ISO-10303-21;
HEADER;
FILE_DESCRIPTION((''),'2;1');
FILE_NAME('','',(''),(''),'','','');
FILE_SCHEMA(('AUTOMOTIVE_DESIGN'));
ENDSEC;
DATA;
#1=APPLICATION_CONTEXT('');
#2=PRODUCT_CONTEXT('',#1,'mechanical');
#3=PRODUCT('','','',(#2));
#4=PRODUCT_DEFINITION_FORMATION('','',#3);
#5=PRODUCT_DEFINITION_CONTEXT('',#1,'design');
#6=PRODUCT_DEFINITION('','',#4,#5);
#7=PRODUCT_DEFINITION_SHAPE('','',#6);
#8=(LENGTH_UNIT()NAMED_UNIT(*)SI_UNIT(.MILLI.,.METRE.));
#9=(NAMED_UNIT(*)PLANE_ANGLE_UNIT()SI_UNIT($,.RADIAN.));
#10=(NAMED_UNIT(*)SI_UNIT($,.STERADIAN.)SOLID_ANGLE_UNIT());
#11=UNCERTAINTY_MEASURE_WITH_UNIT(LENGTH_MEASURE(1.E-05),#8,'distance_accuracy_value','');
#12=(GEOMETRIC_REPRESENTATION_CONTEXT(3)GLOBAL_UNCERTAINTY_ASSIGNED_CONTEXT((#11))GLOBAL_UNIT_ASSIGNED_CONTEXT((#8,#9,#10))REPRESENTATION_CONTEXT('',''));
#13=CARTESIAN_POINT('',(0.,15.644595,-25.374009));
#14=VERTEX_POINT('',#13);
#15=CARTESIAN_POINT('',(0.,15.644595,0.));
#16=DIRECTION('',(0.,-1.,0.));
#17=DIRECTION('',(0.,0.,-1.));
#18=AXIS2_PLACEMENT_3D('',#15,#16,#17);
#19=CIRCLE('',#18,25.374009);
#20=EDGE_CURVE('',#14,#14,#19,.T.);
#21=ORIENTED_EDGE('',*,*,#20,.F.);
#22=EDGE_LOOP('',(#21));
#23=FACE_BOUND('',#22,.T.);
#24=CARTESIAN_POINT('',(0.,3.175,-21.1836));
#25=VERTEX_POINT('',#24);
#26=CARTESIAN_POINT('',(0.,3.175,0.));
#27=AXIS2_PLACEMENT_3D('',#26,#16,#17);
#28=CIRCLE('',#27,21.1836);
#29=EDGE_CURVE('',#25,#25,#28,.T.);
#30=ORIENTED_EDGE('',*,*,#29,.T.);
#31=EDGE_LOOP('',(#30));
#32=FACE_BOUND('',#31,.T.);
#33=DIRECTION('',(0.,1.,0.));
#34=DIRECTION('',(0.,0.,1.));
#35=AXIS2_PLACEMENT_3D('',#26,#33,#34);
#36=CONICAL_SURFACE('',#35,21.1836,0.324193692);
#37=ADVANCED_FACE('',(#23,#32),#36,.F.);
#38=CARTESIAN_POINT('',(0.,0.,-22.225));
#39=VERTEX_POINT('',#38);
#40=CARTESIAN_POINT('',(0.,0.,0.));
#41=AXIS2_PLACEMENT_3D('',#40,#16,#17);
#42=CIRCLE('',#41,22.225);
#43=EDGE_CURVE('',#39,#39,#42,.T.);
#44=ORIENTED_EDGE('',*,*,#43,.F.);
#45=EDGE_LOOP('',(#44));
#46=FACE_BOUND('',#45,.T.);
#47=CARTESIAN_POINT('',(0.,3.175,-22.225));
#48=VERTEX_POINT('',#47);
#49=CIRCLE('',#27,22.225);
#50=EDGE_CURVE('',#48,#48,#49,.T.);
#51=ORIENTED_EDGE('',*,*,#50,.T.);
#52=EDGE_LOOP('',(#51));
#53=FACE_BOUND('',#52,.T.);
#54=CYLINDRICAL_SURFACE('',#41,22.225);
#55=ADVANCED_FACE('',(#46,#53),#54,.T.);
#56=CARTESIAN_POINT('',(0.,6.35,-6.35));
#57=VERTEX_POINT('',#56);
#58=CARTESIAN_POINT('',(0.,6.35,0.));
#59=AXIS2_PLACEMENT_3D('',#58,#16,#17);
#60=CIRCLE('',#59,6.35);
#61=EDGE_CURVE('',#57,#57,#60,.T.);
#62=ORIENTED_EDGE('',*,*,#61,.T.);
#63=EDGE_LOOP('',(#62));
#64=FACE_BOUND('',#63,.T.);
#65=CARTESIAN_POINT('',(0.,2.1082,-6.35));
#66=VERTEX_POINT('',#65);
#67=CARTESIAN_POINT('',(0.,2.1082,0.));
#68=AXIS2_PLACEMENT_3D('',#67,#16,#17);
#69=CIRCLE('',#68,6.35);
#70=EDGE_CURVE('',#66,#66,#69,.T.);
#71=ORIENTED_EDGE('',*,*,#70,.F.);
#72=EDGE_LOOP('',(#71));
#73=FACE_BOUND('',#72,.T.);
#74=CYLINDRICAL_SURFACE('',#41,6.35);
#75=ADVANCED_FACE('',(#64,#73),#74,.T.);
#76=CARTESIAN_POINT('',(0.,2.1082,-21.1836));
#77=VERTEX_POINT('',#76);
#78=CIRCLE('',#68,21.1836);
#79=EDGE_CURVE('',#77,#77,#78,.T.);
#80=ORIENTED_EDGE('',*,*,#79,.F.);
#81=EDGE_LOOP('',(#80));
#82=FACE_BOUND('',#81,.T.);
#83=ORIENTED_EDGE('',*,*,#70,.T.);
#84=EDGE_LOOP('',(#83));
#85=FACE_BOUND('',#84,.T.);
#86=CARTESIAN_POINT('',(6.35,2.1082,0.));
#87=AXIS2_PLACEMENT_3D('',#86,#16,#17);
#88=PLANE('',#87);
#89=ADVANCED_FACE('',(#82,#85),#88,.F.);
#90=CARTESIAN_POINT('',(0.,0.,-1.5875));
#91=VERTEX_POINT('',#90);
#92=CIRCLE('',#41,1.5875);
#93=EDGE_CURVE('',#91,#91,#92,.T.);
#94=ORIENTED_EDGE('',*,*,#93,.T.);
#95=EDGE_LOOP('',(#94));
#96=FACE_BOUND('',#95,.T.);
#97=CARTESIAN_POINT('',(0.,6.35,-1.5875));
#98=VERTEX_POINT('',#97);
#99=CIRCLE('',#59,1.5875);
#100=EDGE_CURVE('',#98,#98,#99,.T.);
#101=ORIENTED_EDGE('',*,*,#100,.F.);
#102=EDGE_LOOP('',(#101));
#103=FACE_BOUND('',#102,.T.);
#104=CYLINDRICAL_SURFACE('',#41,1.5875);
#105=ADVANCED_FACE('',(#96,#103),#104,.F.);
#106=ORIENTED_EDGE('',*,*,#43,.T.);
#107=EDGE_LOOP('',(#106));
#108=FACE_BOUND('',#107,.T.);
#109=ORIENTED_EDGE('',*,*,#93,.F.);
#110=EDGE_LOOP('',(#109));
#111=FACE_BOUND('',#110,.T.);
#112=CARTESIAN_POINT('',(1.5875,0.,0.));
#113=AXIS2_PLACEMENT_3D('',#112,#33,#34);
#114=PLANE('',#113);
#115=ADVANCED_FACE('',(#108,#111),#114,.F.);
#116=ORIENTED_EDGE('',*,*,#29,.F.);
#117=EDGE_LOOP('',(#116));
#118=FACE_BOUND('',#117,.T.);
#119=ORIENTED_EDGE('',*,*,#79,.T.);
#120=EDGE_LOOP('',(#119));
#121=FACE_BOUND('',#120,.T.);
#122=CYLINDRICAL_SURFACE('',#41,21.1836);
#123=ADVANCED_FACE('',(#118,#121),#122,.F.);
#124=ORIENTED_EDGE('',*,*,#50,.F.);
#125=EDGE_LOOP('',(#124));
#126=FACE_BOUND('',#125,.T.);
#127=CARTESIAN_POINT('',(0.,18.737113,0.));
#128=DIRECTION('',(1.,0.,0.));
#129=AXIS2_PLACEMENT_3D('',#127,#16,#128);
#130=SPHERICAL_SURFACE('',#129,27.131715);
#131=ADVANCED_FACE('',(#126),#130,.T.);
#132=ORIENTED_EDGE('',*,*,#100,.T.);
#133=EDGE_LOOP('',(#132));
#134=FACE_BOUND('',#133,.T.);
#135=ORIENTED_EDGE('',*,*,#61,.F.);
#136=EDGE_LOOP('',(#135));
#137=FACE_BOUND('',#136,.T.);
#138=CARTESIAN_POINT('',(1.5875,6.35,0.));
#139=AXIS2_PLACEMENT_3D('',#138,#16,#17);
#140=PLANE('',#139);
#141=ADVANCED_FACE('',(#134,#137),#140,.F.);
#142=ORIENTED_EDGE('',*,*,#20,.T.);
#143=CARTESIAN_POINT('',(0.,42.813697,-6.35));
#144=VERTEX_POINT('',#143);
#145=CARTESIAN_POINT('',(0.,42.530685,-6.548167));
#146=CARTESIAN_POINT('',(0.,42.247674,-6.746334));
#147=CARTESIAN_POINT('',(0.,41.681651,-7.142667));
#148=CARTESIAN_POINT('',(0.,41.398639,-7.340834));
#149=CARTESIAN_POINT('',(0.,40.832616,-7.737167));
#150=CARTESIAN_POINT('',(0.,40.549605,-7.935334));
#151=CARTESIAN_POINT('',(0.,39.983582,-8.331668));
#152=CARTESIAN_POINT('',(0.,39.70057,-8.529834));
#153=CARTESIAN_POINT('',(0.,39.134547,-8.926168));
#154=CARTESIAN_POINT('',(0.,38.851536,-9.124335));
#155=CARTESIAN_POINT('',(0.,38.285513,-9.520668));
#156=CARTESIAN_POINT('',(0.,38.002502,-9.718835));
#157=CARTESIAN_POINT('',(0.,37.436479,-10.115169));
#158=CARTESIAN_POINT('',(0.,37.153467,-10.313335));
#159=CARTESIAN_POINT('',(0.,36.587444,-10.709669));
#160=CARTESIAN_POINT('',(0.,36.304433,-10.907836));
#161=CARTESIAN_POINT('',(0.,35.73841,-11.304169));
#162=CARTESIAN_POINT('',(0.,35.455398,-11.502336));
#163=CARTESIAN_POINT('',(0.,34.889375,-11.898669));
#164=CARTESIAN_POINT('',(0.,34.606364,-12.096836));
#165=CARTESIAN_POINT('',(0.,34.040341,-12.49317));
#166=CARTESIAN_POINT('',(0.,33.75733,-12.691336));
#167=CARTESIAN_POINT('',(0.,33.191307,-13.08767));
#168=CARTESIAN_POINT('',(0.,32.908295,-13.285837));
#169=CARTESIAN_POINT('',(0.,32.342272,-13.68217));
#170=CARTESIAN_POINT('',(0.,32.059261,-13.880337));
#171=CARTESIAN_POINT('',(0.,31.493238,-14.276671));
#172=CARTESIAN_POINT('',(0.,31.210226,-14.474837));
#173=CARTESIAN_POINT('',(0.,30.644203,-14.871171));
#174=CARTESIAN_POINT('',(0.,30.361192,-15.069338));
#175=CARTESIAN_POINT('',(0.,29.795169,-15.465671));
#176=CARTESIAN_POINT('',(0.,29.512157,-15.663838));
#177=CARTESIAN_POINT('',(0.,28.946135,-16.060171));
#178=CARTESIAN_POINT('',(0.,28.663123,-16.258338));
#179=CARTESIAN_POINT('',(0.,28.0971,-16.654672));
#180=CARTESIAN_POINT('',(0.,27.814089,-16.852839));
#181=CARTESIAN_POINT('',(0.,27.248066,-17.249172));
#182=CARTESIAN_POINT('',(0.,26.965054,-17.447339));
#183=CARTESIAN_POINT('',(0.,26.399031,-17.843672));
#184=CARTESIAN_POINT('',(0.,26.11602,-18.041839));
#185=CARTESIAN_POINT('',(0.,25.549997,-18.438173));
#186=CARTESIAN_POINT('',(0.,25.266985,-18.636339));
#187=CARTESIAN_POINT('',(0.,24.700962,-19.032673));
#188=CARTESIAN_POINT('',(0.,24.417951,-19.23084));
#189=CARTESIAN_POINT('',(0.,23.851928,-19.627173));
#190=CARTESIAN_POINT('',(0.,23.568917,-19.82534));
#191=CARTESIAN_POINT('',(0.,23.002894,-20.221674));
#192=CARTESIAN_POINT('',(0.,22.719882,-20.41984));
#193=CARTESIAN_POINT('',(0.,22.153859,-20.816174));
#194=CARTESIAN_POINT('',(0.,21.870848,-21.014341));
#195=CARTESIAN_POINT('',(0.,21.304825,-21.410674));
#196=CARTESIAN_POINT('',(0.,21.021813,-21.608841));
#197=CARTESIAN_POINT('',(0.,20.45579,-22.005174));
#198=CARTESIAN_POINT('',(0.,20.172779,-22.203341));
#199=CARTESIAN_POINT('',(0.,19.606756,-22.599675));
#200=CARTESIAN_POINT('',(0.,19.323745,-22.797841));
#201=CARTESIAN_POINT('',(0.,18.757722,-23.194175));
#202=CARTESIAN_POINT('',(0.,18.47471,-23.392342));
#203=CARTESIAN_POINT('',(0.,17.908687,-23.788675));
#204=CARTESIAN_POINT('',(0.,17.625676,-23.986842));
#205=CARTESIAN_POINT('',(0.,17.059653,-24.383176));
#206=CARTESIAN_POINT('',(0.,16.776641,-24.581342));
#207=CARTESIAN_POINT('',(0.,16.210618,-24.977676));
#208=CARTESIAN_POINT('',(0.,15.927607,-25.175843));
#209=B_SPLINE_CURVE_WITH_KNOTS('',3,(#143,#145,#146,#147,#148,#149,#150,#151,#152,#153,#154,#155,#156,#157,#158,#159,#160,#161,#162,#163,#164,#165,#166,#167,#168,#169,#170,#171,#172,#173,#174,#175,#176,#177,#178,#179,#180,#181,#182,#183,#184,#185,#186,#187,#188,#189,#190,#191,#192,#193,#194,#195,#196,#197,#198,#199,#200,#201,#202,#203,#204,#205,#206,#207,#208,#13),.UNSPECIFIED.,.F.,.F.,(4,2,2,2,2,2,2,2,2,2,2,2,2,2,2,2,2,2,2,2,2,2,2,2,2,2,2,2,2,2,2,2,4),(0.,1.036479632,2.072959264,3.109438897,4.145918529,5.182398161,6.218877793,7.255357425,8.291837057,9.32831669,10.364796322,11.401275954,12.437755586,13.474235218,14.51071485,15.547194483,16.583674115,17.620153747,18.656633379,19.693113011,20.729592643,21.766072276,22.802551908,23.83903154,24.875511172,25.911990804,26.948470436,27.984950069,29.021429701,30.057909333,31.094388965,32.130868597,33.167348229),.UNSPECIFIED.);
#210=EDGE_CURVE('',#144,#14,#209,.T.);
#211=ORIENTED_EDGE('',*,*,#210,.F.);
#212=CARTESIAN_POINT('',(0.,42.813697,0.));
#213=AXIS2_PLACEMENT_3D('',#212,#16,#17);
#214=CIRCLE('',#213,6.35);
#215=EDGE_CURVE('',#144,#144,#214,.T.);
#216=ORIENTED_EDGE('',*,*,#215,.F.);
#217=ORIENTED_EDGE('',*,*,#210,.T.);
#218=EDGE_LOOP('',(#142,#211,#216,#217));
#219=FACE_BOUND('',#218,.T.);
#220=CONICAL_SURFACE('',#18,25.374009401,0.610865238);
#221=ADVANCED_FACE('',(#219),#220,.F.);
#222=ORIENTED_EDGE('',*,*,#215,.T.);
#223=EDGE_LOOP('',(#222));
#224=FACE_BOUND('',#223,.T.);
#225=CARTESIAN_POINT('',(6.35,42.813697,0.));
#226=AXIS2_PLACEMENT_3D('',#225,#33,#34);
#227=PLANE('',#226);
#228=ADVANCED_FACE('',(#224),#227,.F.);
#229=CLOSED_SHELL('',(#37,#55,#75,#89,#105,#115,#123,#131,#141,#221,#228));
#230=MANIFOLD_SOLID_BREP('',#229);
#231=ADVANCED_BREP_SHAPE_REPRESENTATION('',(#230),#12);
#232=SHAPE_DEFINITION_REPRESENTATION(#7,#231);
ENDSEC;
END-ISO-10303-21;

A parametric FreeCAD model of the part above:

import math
import FreeCAD as App
import Part
import Sketcher

V = App.Vector
Q = App.Units.Quantity

doc = App.newDocument("Part")
body = doc.addObject("PartDesign::Body", "Body")

# Sketch on XY plane
sketch1 = body.newObject("Sketcher::SketchObject", "Sketch")
sketch1.AttachmentSupport = (doc.getObject("XY_Plane"), [""])
sketch1.MapMode = "FlatFace"
sketch1.addGeometry([
    Part.LineSegment(V(-22.2, 0, 0), V(-1.6, 0, 0)),  # 0
    Part.LineSegment(V(-1.6, 0, 0), V(-1.6, 6.3, 0)),  # 1
    Part.LineSegment(V(-1.6, 6.3, 0), V(-6.3, 6.3, 0)),  # 2
    Part.LineSegment(V(-6.3, 6.3, 0), V(-6.3, 2.1, 0)),  # 3
    Part.LineSegment(V(-6.3, 2.1, 0), V(-21.2, 2.1, 0)),  # 4
    Part.LineSegment(V(-21.2, 2.1, 0), V(-21.2, 3.2, 0)),  # 5
    Part.LineSegment(V(-21.2, 3.2, 0), V(-25.4, 15.6, 0)),  # 6
    Part.LineSegment(V(-25.4, 15.6, 0), V(-21.2, 21.6, 0)),  # 7
    Part.LineSegment(V(-21.2, 21.6, 0), V(-6.3, 42.8, 0)),  # 8
    Part.LineSegment(V(-6.3, 42.8, 0), V(0, 42.8, 0)),  # 9
    Part.LineSegment(V(0, 42.8, 0), V(0, 45.9, 0)),  # 10
    Part.ArcOfCircle(Part.Circle(V(0, 18.7, 0), V(0, 0, 1), 27.1), math.radians(90), math.radians(215)),  # 11
    Part.LineSegment(V(-22.2, 3.2, 0), V(-22.2, 0, 0)),  # 12
], False)
sketch1.addConstraint([
    Sketcher.Constraint("Coincident", 0, 2, 1, 1),
    Sketcher.Constraint("Coincident", 1, 2, 2, 1),
    Sketcher.Constraint("Coincident", 2, 2, 3, 1),
    Sketcher.Constraint("Coincident", 3, 2, 4, 1),
    Sketcher.Constraint("Coincident", 4, 2, 5, 1),
    Sketcher.Constraint("Coincident", 5, 2, 6, 1),
    Sketcher.Constraint("Coincident", 6, 2, 7, 1),
    Sketcher.Constraint("Coincident", 7, 2, 8, 1),
    Sketcher.Constraint("Coincident", 8, 2, 9, 1),
    Sketcher.Constraint("Coincident", 9, 2, 10, 1),
    Sketcher.Constraint("Coincident", 10, 2, 11, 1),
    Sketcher.Constraint("Coincident", 11, 2, 12, 1),
    Sketcher.Constraint("Coincident", 12, 2, 0, 1),
    Sketcher.Constraint("Horizontal", 0),
    Sketcher.Constraint("Vertical", 1),
    Sketcher.Constraint("Horizontal", 2),
    Sketcher.Constraint("Vertical", 3),
    Sketcher.Constraint("Horizontal", 4),
    Sketcher.Constraint("Vertical", 5),
    Sketcher.Constraint("Horizontal", 9),
    Sketcher.Constraint("Vertical", 10),
    Sketcher.Constraint("Vertical", 12),
    Sketcher.Constraint("PointOnObject", 11, 3, -2),
    Sketcher.Constraint("PointOnObject", 0, 2, -1),
    Sketcher.Constraint("PointOnObject", 9, 2, -2),
    Sketcher.Constraint("Parallel", 7, 8),
    Sketcher.Constraint("Horizontal", 5, 2, 11, 2),
    Sketcher.Constraint("Vertical", 5, 2, 7, 2),
    Sketcher.Constraint("Vertical", 3, 2, 8, 2),
    Sketcher.Constraint("Equal", 9, 1),
    Sketcher.Constraint("Angle", 7, Q("55 deg")),
    Sketcher.Constraint("DistanceX", 9, 1, 9, 2, Q("0.25 in")),
    Sketcher.Constraint("DistanceX", 0, 1, 0, 2, Q("0.8125 in")),
    Sketcher.Constraint("DistanceX", 2, 2, 2, 1, Q("0.1875 in")),
    Sketcher.Constraint("DistanceX", 4, 2, 4, 1, Q("0.584 in")),
    Sketcher.Constraint("DistanceY", 3, 2, 3, 1, Q("0.167 in")),
    Sketcher.Constraint("DistanceY", 5, 1, 5, 2, Q("0.042 in")),
    Sketcher.Constraint("Radius", 11, Q("27.131715 mm")),
    Sketcher.Constraint("DistanceY", 10, 1, 10, 2, Q("3.055131 mm")),
    Sketcher.Constraint("DistanceY", 6, 2, 8, 2, Q("27.169101 mm")),
])
revolution = body.newObject("PartDesign::Revolution", "Revolution")
revolution.Profile = sketch1
revolution.ReferenceAxis = (sketch1, ["V_Axis"])
revolution.Angle = 360

doc.recompute()
